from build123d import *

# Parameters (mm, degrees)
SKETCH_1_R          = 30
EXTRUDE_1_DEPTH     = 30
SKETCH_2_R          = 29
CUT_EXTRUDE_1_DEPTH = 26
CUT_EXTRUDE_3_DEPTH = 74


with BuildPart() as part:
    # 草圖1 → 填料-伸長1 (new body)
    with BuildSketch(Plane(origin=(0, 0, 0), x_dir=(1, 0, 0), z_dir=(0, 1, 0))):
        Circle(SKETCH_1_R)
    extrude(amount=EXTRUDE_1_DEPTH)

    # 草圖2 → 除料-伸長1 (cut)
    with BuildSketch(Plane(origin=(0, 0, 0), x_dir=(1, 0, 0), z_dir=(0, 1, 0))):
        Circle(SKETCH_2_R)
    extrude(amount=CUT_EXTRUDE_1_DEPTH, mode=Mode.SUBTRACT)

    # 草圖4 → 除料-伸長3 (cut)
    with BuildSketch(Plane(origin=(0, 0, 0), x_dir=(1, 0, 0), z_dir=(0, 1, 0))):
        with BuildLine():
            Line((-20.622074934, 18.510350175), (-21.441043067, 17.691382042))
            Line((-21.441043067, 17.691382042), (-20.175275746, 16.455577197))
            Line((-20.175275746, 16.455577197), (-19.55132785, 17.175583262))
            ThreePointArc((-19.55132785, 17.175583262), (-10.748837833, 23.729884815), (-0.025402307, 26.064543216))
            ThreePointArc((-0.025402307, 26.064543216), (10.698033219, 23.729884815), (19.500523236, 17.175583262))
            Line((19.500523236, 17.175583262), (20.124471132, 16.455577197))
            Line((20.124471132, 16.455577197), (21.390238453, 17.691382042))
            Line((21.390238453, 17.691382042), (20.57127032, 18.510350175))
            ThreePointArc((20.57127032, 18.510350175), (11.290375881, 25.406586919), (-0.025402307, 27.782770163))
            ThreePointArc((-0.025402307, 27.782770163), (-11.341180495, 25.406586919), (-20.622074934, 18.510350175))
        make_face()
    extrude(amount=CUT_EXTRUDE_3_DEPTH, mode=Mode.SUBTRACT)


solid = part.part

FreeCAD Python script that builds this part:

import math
import FreeCAD as App
import Part
import Sketcher

V = App.Vector

doc = App.newDocument("Part")
body = doc.addObject("PartDesign::Body", "Body")

# Sketch on XZ plane
sketch1 = body.newObject("Sketcher::SketchObject", "Sketch")
sketch1.AttachmentSupport = (doc.getObject("XZ_Plane"), [""])
sketch1.MapMode = "FlatFace"
sketch1.addGeometry(Part.Circle(V(0, 0, 0), V(0, 0, 1), 30), False)
sketch1.addConstraint([
    Sketcher.Constraint("Coincident", 0, 3, -1, 1),
    Sketcher.Constraint("Diameter", 0, 60.0),
])
pad1 = body.newObject("PartDesign::Pad", "Pad")
pad1.Profile = sketch1
pad1.Length = 30
pad1.Reversed = True

# Sketch on XZ plane
sketch2 = body.newObject("Sketcher::SketchObject", "Sketch001")
sketch2.AttachmentSupport = (doc.getObject("XZ_Plane"), [""])
sketch2.MapMode = "FlatFace"
sketch2.addGeometry(Part.Circle(V(0, 0, 0), V(0, 0, 1), 29), False)
sketch2.addConstraint([
    Sketcher.Constraint("Coincident", 0, 3, -1, 1),
    Sketcher.Constraint("Diameter", 0, 58.0),
])
pocket1 = body.newObject("PartDesign::Pocket", "Pocket")
pocket1.Profile = sketch2
pocket1.Length = 26

# Sketch on XZ plane
sketch3 = body.newObject("Sketcher::SketchObject", "Sketch002")
sketch3.AttachmentSupport = (doc.getObject("XZ_Plane"), [""])
sketch3.MapMode = "FlatFace"
sketch3.addGeometry([
    Part.LineSegment(V(-20.622075, -18.51035, 0), V(-21.441043, -17.691382, 0)),  # 0
    Part.LineSegment(V(-21.441043, -17.691382, 0), V(-20.175276, -16.455577, 0)),  # 1
    Part.LineSegment(V(-20.175276, -16.455577, 0), V(-19.551328, -17.175583, 0)),  # 2
    Part.ArcOfCircle(Part.Circle(V(0.014565, -0.086466, 0), V(0, 0, 1), 25.978108), math.radians(-138.865595), math.radians(-90.088149)),  # 3
    Part.ArcOfCircle(Part.Circle(V(-0.06537, -0.086466, 0), V(0, 0, 1), 25.978108), math.radians(-89.911851), math.radians(-41.134405)),  # 4
    Part.LineSegment(V(19.500523, -17.175583, 0), V(20.124471, -16.455577, 0)),  # 5
    Part.LineSegment(V(20.124471, -16.455577, 0), V(21.390238, -17.691382, 0)),  # 6
    Part.LineSegment(V(21.390238, -17.691382, 0), V(20.57127, -18.51035, 0)),  # 7
    Part.ArcOfCircle(Part.Circle(V(0.218672, -0.813194, 0), V(0, 0, 1), 26.970681), math.radians(-90.518511), math.radians(-41.007875)),  # 8
    Part.ArcOfCircle(Part.Circle(V(-0.269476, -0.813194, 0), V(0, 0, 1), 26.970681), math.radians(-138.992125), math.radians(-89.481489)),  # 9
], False)
sketch3.addConstraint([
    Sketcher.Constraint("Coincident", 0, 2, 1, 1),
    Sketcher.Constraint("Coincident", 1, 2, 2, 1),
    Sketcher.Constraint("Coincident", 2, 2, 3, 1),
    Sketcher.Constraint("Coincident", 3, 2, 4, 1),
    Sketcher.Constraint("Coincident", 4, 2, 5, 1),
    Sketcher.Constraint("Coincident", 5, 2, 6, 1),
    Sketcher.Constraint("Coincident", 6, 2, 7, 1),
    Sketcher.Constraint("Coincident", 7, 2, 8, 2),
    Sketcher.Constraint("Coincident", 8, 1, 9, 2),
    Sketcher.Constraint("Coincident", 9, 1, 0, 1),
    Sketcher.Constraint("Equal", 3, 4),
    Sketcher.Constraint("Equal", 8, 9),
    Sketcher.Constraint("Perpendicular", 0, 7),
    Sketcher.Constraint("Horizontal", 3, 3, 4, 3),
    Sketcher.Constraint("Horizontal", 8, 3, 9, 3),
    Sketcher.Constraint("Horizontal", 2, 2, 4, 2),
    Sketcher.Constraint("Horizontal", 1, 2, 5, 2),
    Sketcher.Constraint("Horizontal", 0, 2, 6, 2),
    Sketcher.Constraint("Horizontal", 7, 2, 9, 1),
    Sketcher.Constraint("Vertical", 3, 2, 8, 1),
    Sketcher.Constraint("Equal", 2, 5),
    Sketcher.Constraint("Equal", 1, 6),
    Sketcher.Constraint("Radius", 8, 26.970681),
    Sketcher.Constraint("DistanceX", 2, 2, 8, 3, 19.769999),
    Sketcher.Constraint("Radius", 3, 25.978108),
    Sketcher.Constraint("DistanceX", 1, 2, 9, 3, 19.9058),
    Sketcher.Constraint("DistanceY", 0, 2, 2, 2, 0.515799),
    Sketcher.Constraint("DistanceX", 5, 2, 7, 2, 0.446799),
    Sketcher.Constraint("DistanceX", 4, 3, -1, 1, 0.06537),
    Sketcher.Constraint("DistanceX", -1, 1, 8, 3, 0.218672),
    Sketcher.Constraint("DistanceX", -1, 1, 6, 2, 21.390238),
    Sketcher.Constraint("DistanceY", 7, 2, -1, 1, 18.51035),
    Sketcher.Constraint("DistanceY", 1, 2, 4, 3, 16.369111),
    Sketcher.Constraint("DistanceX", 2, 2, 9, 3, 19.281852),
])
pocket2 = body.newObject("PartDesign::Pocket", "Pocket001")
pocket2.Profile = sketch3
pocket2.Length = 74

doc.recompute()
